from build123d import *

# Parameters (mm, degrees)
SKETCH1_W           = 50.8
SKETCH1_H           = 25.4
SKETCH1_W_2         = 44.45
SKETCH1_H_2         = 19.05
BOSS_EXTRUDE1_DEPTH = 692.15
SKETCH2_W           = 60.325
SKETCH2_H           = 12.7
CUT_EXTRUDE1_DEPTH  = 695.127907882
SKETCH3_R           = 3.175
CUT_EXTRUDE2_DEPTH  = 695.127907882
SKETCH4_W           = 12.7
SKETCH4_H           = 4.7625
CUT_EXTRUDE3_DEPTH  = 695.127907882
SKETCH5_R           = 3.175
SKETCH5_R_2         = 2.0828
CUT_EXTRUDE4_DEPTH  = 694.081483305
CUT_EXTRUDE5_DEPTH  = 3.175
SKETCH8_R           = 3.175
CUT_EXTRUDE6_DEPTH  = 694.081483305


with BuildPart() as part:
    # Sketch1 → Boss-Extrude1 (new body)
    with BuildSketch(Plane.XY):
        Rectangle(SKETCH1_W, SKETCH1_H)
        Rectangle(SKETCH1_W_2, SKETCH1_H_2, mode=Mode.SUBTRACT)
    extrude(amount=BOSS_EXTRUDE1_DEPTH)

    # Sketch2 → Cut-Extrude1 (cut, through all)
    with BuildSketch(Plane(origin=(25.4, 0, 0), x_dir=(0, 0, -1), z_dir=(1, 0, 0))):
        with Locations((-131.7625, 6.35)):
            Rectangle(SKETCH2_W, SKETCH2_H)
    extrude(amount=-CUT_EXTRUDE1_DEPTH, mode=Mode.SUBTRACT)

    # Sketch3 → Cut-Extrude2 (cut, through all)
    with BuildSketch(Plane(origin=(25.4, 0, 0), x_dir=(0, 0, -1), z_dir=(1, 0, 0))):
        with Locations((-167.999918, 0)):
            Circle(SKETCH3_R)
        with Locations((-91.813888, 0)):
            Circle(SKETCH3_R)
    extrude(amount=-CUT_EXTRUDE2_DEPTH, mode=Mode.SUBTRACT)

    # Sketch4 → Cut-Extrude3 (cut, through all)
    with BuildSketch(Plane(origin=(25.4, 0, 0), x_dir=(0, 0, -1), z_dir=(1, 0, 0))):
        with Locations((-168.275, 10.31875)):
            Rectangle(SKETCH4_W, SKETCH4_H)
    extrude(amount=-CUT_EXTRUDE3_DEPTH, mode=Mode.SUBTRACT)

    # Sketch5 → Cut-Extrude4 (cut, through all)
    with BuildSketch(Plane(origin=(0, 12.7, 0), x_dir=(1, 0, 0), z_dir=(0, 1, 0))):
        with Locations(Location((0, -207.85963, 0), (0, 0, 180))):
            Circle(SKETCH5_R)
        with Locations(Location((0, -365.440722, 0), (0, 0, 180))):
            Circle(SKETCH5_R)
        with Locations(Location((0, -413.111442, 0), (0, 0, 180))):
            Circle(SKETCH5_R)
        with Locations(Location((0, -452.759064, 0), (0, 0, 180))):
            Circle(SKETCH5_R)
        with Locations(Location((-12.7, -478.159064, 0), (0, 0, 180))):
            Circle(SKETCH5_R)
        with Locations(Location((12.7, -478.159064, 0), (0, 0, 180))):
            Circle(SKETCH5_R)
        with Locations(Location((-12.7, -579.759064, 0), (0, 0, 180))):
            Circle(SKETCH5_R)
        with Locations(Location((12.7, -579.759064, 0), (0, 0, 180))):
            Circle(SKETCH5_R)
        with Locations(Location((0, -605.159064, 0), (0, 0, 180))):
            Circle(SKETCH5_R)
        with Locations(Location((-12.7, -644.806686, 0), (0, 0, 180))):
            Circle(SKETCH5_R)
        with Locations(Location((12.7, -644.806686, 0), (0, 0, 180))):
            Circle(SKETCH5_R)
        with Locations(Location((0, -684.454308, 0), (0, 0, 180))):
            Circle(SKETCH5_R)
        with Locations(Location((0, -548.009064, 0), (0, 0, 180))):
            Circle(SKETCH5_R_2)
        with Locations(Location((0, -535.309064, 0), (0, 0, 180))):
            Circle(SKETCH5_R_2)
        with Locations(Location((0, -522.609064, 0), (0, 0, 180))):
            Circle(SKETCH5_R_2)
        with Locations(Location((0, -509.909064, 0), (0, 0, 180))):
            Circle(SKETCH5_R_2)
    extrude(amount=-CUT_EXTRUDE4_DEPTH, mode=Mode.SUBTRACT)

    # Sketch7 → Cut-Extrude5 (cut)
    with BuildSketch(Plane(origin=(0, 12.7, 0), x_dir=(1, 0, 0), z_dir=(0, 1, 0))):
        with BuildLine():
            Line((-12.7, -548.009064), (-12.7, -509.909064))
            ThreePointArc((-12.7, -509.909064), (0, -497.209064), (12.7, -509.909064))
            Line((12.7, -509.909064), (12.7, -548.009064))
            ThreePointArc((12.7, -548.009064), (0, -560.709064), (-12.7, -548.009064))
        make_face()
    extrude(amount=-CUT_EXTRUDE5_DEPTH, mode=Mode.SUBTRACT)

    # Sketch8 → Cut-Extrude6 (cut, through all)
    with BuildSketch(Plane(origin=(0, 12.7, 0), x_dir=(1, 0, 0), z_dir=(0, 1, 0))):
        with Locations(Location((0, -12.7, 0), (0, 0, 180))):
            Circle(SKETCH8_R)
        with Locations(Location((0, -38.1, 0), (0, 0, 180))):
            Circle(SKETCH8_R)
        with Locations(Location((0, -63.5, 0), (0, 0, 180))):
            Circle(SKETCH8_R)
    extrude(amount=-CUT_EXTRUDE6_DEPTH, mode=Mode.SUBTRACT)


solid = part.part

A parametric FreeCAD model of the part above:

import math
import FreeCAD as App
import Part
import Sketcher

V = App.Vector
Q = App.Units.Quantity


def add_polygon(sketch, points):
    """Adds a closed chain of lines whose ends are joined by coincident constraints."""
    first, n = sketch.GeometryCount, len(points)
    for a, b in zip(points, points[1:] + points[:1]):
        sketch.addGeometry(Part.LineSegment(App.Vector(*a, 0), App.Vector(*b, 0)), False)
    for i in range(n):
        sketch.addConstraint(Sketcher.Constraint("Coincident", first + i, 2, first + (i + 1) % n, 1))

doc = App.newDocument("Part")
body = doc.addObject("PartDesign::Body", "Body")

# Sketch on XY plane
sketch1 = doc.addObject("Sketcher::SketchObject", "Sketch")
body.addObject(sketch1)
sketch1.AttachmentSupport = (doc.XY_Plane, [""])
sketch1.MapMode = "FlatFace"
add_polygon(sketch1, [(-25.4, 12.7), (-25.4, -12.7), (25.4, -12.7), (25.4, 12.7)])  # lines 0-3
add_polygon(sketch1, [(22.225, -9.525), (-22.225, -9.525), (-22.225, 9.525), (22.225, 9.525)])  # lines 4-7
sketch1.addConstraint(Sketcher.Constraint("Vertical", 0))
sketch1.addConstraint(Sketcher.Constraint("Horizontal", 1))
sketch1.addConstraint(Sketcher.Constraint("Vertical", 2))
sketch1.addConstraint(Sketcher.Constraint("Horizontal", 3))
sketch1.addConstraint(Sketcher.Constraint("Horizontal", 4))
sketch1.addConstraint(Sketcher.Constraint("Vertical", 5))
sketch1.addConstraint(Sketcher.Constraint("Horizontal", 6))
sketch1.addConstraint(Sketcher.Constraint("Vertical", 7))
sketch1.addConstraint(Sketcher.Constraint("Symmetric", 0, 2, 2, 2, -1, 1))
sketch1.addConstraint(Sketcher.Constraint("Symmetric", 4, 2, 6, 2, -1, 1))
sketch1.addConstraint(Sketcher.Constraint("DistanceX", 1, 1, 1, 2, Q("2 in")))
sketch1.addConstraint(Sketcher.Constraint("DistanceY", 0, 2, 0, 1, Q("1 in")))
sketch1.addConstraint(Sketcher.Constraint("DistanceX", 4, 2, 4, 1, Q("1.75 in")))
sketch1.addConstraint(Sketcher.Constraint("DistanceY", 5, 1, 5, 2, Q("0.75 in")))
pad1 = doc.addObject("PartDesign::Pad", "Pad")
body.addObject(pad1)
pad1.Profile = sketch1
pad1.Length = Q("27.25 in")

# Sketch on YZ plane
sketch2 = doc.addObject("Sketcher::SketchObject", "Sketch001")
body.addObject(sketch2)
sketch2.AttachmentSupport = (doc.YZ_Plane, [""])
sketch2.MapMode = "FlatFace"
sketch2.AttachmentOffset = App.Placement(V(0, 0, 1 * 25.4), App.Rotation())
add_polygon(sketch2, [(12.7, 161.925), (0, 161.925), (0, 101.6), (12.7, 101.6)])  # lines 0-3
sketch2.addConstraint(Sketcher.Constraint("Horizontal", 0))
sketch2.addConstraint(Sketcher.Constraint("Vertical", 1))
sketch2.addConstraint(Sketcher.Constraint("Horizontal", 2))
sketch2.addConstraint(Sketcher.Constraint("Vertical", 3))
sketch2.addConstraint(Sketcher.Constraint("PointOnObject", 0, 2, -2))
sketch2.addConstraint(Sketcher.Constraint("DistanceX", 0, 2, 0, 1, Q("0.5 in")))
sketch2.addConstraint(Sketcher.Constraint("DistanceY", -1, 1, 1, 2, Q("4 in")))
sketch2.addConstraint(Sketcher.Constraint("DistanceY", 1, 2, 1, 1, Q("2.375 in")))
pocket1 = doc.addObject("PartDesign::Pocket", "Pocket")
body.addObject(pocket1)
pocket1.Profile = sketch2
pocket1.Type = "ThroughAll"

# Sketch on YZ plane
sketch3 = doc.addObject("Sketcher::SketchObject", "Sketch002")
body.addObject(sketch3)
sketch3.AttachmentSupport = (doc.YZ_Plane, [""])
sketch3.MapMode = "FlatFace"
sketch3.AttachmentOffset = App.Placement(V(0, 0, 1 * 25.4), App.Rotation())
sketch3.addGeometry(Part.Circle(V(0, 167.999918, 0), V(0, 0, 1), 3.175), False)
sketch3.addGeometry(Part.Circle(V(0, 91.813888, 0), V(0, 0, 1), 3.175), False)
sketch3.addConstraint(Sketcher.Constraint("Equal", 0, 1))
sketch3.addConstraint(Sketcher.Constraint("PointOnObject", 0, 3, -2))
sketch3.addConstraint(Sketcher.Constraint("PointOnObject", 1, 3, -2))
sketch3.addConstraint(Sketcher.Constraint("Diameter", 0, Q("0.25 in")))
sketch3.addConstraint(Sketcher.Constraint("DistanceY", -1, 1, 0, 3, Q("167.999918 mm")))
sketch3.addConstraint(Sketcher.Constraint("DistanceY", -1, 1, 1, 3, Q("91.813888 mm")))
pocket2 = doc.addObject("PartDesign::Pocket", "Pocket001")
body.addObject(pocket2)
pocket2.Profile = sketch3
pocket2.Type = "ThroughAll"

# Sketch on YZ plane
sketch4 = doc.addObject("Sketcher::SketchObject", "Sketch003")
body.addObject(sketch4)
sketch4.AttachmentSupport = (doc.YZ_Plane, [""])
sketch4.MapMode = "FlatFace"
sketch4.AttachmentOffset = App.Placement(V(0, 0, 1 * 25.4), App.Rotation())
add_polygon(sketch4, [(12.7, 174.625), (7.9375, 174.625), (7.9375, 161.925), (12.7, 161.925)])  # lines 0-3
sketch4.addConstraint(Sketcher.Constraint("Horizontal", 0))
sketch4.addConstraint(Sketcher.Constraint("Vertical", 1))
sketch4.addConstraint(Sketcher.Constraint("Horizontal", 2))
sketch4.addConstraint(Sketcher.Constraint("Vertical", 3))
sketch4.addConstraint(Sketcher.Constraint("DistanceY", 1, 2, 1, 1, Q("0.5 in")))
sketch4.addConstraint(Sketcher.Constraint("DistanceX", -1, 1, 2, 2, Q("0.5 in")))
sketch4.addConstraint(Sketcher.Constraint("DistanceX", 0, 2, 0, 1, Q("0.1875 in")))
sketch4.addConstraint(Sketcher.Constraint("DistanceY", -1, 1, 0, 2, Q("6.875 in")))
pocket3 = doc.addObject("PartDesign::Pocket", "Pocket002")
body.addObject(pocket3)
pocket3.Profile = sketch4
pocket3.Type = "ThroughAll"

# Sketch on XZ plane
sketch5 = doc.addObject("Sketcher::SketchObject", "Sketch004")
body.addObject(sketch5)
sketch5.AttachmentSupport = (doc.XZ_Plane, [""])
sketch5.MapMode = "FlatFace"
sketch5.AttachmentOffset = App.Placement(V(0, 0, -0.5 * 25.4), App.Rotation())
sketch5.addGeometry(Part.Circle(V(0, 207.85963, 0), V(0, 0, 1), 3.175), False)
sketch5.addGeometry(Part.Circle(V(0, 365.440722, 0), V(0, 0, 1), 3.175), False)
sketch5.addGeometry(Part.Circle(V(0, 413.111442, 0), V(0, 0, 1), 3.175), False)
sketch5.addGeometry(Part.Circle(V(0, 452.759064, 0), V(0, 0, 1), 3.175), False)
sketch5.addGeometry(Part.Circle(V(-12.7, 478.159064, 0), V(0, 0, 1), 3.175), False)
sketch5.addGeometry(Part.Circle(V(12.7, 478.159064, 0), V(0, 0, 1), 3.175), False)
sketch5.addGeometry(Part.Circle(V(-12.7, 579.759064, 0), V(0, 0, 1), 3.175), False)
sketch5.addGeometry(Part.Circle(V(12.7, 579.759064, 0), V(0, 0, 1), 3.175), False)
sketch5.addGeometry(Part.Circle(V(0, 605.159064, 0), V(0, 0, 1), 3.175), False)
sketch5.addGeometry(Part.Circle(V(-12.7, 644.806686, 0), V(0, 0, 1), 3.175), False)
sketch5.addGeometry(Part.Circle(V(12.7, 644.806686, 0), V(0, 0, 1), 3.175), False)
sketch5.addGeometry(Part.Circle(V(0, 684.454308, 0), V(0, 0, 1), 3.175), False)
sketch5.addGeometry(Part.Circle(V(0, 548.009064, 0), V(0, 0, 1), 2.0828), False)
sketch5.addGeometry(Part.Circle(V(0, 535.309064, 0), V(0, 0, 1), 2.0828), False)
sketch5.addGeometry(Part.Circle(V(0, 522.609064, 0), V(0, 0, 1), 2.0828), False)
sketch5.addGeometry(Part.Circle(V(0, 509.909064, 0), V(0, 0, 1), 2.0828), False)
sketch5.addConstraint(Sketcher.Constraint("Equal", 0, 1))
sketch5.addConstraint(Sketcher.Constraint("Equal", 1, 2))
sketch5.addConstraint(Sketcher.Constraint("Equal", 2, 3))
sketch5.addConstraint(Sketcher.Constraint("Equal", 3, 4))
sketch5.addConstraint(Sketcher.Constraint("Equal", 4, 5))
sketch5.addConstraint(Sketcher.Constraint("Equal", 5, 6))
sketch5.addConstraint(Sketcher.Constraint("Equal", 6, 7))
sketch5.addConstraint(Sketcher.Constraint("Equal", 7, 8))
sketch5.addConstraint(Sketcher.Constraint("Equal", 8, 9))
sketch5.addConstraint(Sketcher.Constraint("Equal", 9, 10))
sketch5.addConstraint(Sketcher.Constraint("Equal", 10, 11))
sketch5.addConstraint(Sketcher.Constraint("Equal", 12, 13))
sketch5.addConstraint(Sketcher.Constraint("Equal", 13, 14))
sketch5.addConstraint(Sketcher.Constraint("Equal", 14, 15))
sketch5.addConstraint(Sketcher.Constraint("Symmetric", 4, 3, 5, 3, -2))
sketch5.addConstraint(Sketcher.Constraint("Symmetric", 6, 3, 7, 3, -2))
sketch5.addConstraint(Sketcher.Constraint("Symmetric", 9, 3, 10, 3, -2))
sketch5.addConstraint(Sketcher.Constraint("PointOnObject", 0, 3, -2))
sketch5.addConstraint(Sketcher.Constraint("PointOnObject", 1, 3, -2))
sketch5.addConstraint(Sketcher.Constraint("PointOnObject", 2, 3, -2))
sketch5.addConstraint(Sketcher.Constraint("PointOnObject", 3, 3, -2))
sketch5.addConstraint(Sketcher.Constraint("PointOnObject", 8, 3, -2))
sketch5.addConstraint(Sketcher.Constraint("PointOnObject", 11, 3, -2))
sketch5.addConstraint(Sketcher.Constraint("PointOnObject", 12, 3, -2))
sketch5.addConstraint(Sketcher.Constraint("PointOnObject", 13, 3, -2))
sketch5.addConstraint(Sketcher.Constraint("PointOnObject", 14, 3, -2))
sketch5.addConstraint(Sketcher.Constraint("PointOnObject", 15, 3, -2))
sketch5.addConstraint(Sketcher.Constraint("Vertical", 4, 3, 6, 3))
sketch5.addConstraint(Sketcher.Constraint("Vertical", 6, 3, 9, 3))
sketch5.addConstraint(Sketcher.Constraint("Diameter", 0, Q("0.25 in")))
sketch5.addConstraint(Sketcher.Constraint("Diameter", 12, Q("0.164 in")))
sketch5.addConstraint(Sketcher.Constraint("DistanceY", 3, 3, 4, 3, Q("1 in")))
sketch5.addConstraint(Sketcher.Constraint("DistanceX", 4, 3, 5, 3, Q("1 in")))
sketch5.addConstraint(Sketcher.Constraint("DistanceY", 4, 3, 6, 3, Q("4 in")))
sketch5.addConstraint(Sketcher.Constraint("DistanceY", 6, 3, 8, 3, Q("1 in")))
sketch5.addConstraint(Sketcher.Constraint("DistanceY", 14, 3, 12, 3, Q("1 in")))
sketch5.addConstraint(Sketcher.Constraint("DistanceY", 15, 3, 13, 3, Q("1 in")))
sketch5.addConstraint(Sketcher.Constraint("DistanceY", 13, 3, 12, 3, Q("0.5 in")))
sketch5.addConstraint(Sketcher.Constraint("DistanceY", 12, 3, 6, 3, Q("1.25 in")))
sketch5.addConstraint(Sketcher.Constraint("DistanceY", 1, 3, 2, 3, Q("1.8768 in")))
sketch5.addConstraint(Sketcher.Constraint("DistanceY", -1, 1, 0, 3, Q("207.85963 mm")))
sketch5.addConstraint(Sketcher.Constraint("DistanceY", -1, 1, 1, 3, Q("365.440722 mm")))
sketch5.addConstraint(Sketcher.Constraint("DistanceY", -1, 1, 11, 3, Q("684.454308 mm")))
sketch5.addConstraint(Sketcher.Constraint("DistanceY", 2, 3, 4, 3, Q("65.047622 mm")))
sketch5.addConstraint(Sketcher.Constraint("DistanceY", 9, 3, 11, 3, Q("39.647622 mm")))
pocket4 = doc.addObject("PartDesign::Pocket", "Pocket003")
body.addObject(pocket4)
pocket4.Profile = sketch5
pocket4.Type = "ThroughAll"
pocket4.Reversed = True

# Sketch on XZ plane
sketch6 = doc.addObject("Sketcher::SketchObject", "Sketch005")
body.addObject(sketch6)
sketch6.AttachmentSupport = (doc.XZ_Plane, [""])
sketch6.MapMode = "FlatFace"
sketch6.AttachmentOffset = App.Placement(V(0, 0, -0.5 * 25.4), App.Rotation())
sketch6.addGeometry(Part.LineSegment(V(-12.7, 509.909064, 0), V(-12.7, 548.009064, 0)), False)
sketch6.addGeometry(Part.ArcOfCircle(Part.Circle(V(0, 548.009064, 0), V(0, 0, 1), 12.7), math.radians(0), math.radians(180)), False)
sketch6.addGeometry(Part.LineSegment(V(12.7, 548.009064, 0), V(12.7, 509.909064, 0)), False)
sketch6.addGeometry(Part.ArcOfCircle(Part.Circle(V(0, 509.909064, 0), V(0, 0, 1), 12.7), math.radians(180), math.radians(360)), False)
sketch6.addConstraint(Sketcher.Constraint("Tangent", 0, 2, 1, 2))
sketch6.addConstraint(Sketcher.Constraint("Tangent", 1, 1, 2, 1))
sketch6.addConstraint(Sketcher.Constraint("Tangent", 2, 2, 3, 2))
sketch6.addConstraint(Sketcher.Constraint("Tangent", 3, 1, 0, 1))
sketch6.addConstraint(Sketcher.Constraint("Vertical", 0))
sketch6.addConstraint(Sketcher.Constraint("Vertical", 2))
sketch6.addConstraint(Sketcher.Constraint("PointOnObject", 1, 3, -2))
sketch6.addConstraint(Sketcher.Constraint("Radius", 1, Q("0.5 in")))
sketch6.addConstraint(Sketcher.Constraint("DistanceY", 0, 1, 0, 2, Q("1.5 in")))
sketch6.addConstraint(Sketcher.Constraint("DistanceY", -1, 1, 1, 3, Q("548.009064 mm")))
pocket5 = doc.addObject("PartDesign::Pocket", "Pocket004")
body.addObject(pocket5)
pocket5.Profile = sketch6
pocket5.Length = Q("0.125 in")
pocket5.Reversed = True

# Sketch on XZ plane
sketch7 = doc.addObject("Sketcher::SketchObject", "Sketch006")
body.addObject(sketch7)
sketch7.AttachmentSupport = (doc.XZ_Plane, [""])
sketch7.MapMode = "FlatFace"
sketch7.AttachmentOffset = App.Placement(V(0, 0, -0.5 * 25.4), App.Rotation())
sketch7.addGeometry(Part.Circle(V(0, 12.7, 0), V(0, 0, 1), 3.175), False)
sketch7.addGeometry(Part.Circle(V(0, 38.1, 0), V(0, 0, 1), 3.175), False)
sketch7.addGeometry(Part.Circle(V(0, 63.5, 0), V(0, 0, 1), 3.175), False)
sketch7.addConstraint(Sketcher.Constraint("Equal", 0, 1))
sketch7.addConstraint(Sketcher.Constraint("Equal", 1, 2))
sketch7.addConstraint(Sketcher.Constraint("PointOnObject", 0, 3, -2))
sketch7.addConstraint(Sketcher.Constraint("PointOnObject", 1, 3, -2))
sketch7.addConstraint(Sketcher.Constraint("PointOnObject", 2, 3, -2))
sketch7.addConstraint(Sketcher.Constraint("Diameter", 0, Q("0.25 in")))
sketch7.addConstraint(Sketcher.Constraint("DistanceY", 0, 3, 1, 3, Q("1 in")))
sketch7.addConstraint(Sketcher.Constraint("DistanceY", 1, 3, 2, 3, Q("1 in")))
sketch7.addConstraint(Sketcher.Constraint("DistanceY", -1, 1, 0, 3, Q("0.5 in")))
pocket6 = doc.addObject("PartDesign::Pocket", "Pocket005")
body.addObject(pocket6)
pocket6.Profile = sketch7
pocket6.Type = "ThroughAll"
pocket6.Reversed = True

doc.recompute()
